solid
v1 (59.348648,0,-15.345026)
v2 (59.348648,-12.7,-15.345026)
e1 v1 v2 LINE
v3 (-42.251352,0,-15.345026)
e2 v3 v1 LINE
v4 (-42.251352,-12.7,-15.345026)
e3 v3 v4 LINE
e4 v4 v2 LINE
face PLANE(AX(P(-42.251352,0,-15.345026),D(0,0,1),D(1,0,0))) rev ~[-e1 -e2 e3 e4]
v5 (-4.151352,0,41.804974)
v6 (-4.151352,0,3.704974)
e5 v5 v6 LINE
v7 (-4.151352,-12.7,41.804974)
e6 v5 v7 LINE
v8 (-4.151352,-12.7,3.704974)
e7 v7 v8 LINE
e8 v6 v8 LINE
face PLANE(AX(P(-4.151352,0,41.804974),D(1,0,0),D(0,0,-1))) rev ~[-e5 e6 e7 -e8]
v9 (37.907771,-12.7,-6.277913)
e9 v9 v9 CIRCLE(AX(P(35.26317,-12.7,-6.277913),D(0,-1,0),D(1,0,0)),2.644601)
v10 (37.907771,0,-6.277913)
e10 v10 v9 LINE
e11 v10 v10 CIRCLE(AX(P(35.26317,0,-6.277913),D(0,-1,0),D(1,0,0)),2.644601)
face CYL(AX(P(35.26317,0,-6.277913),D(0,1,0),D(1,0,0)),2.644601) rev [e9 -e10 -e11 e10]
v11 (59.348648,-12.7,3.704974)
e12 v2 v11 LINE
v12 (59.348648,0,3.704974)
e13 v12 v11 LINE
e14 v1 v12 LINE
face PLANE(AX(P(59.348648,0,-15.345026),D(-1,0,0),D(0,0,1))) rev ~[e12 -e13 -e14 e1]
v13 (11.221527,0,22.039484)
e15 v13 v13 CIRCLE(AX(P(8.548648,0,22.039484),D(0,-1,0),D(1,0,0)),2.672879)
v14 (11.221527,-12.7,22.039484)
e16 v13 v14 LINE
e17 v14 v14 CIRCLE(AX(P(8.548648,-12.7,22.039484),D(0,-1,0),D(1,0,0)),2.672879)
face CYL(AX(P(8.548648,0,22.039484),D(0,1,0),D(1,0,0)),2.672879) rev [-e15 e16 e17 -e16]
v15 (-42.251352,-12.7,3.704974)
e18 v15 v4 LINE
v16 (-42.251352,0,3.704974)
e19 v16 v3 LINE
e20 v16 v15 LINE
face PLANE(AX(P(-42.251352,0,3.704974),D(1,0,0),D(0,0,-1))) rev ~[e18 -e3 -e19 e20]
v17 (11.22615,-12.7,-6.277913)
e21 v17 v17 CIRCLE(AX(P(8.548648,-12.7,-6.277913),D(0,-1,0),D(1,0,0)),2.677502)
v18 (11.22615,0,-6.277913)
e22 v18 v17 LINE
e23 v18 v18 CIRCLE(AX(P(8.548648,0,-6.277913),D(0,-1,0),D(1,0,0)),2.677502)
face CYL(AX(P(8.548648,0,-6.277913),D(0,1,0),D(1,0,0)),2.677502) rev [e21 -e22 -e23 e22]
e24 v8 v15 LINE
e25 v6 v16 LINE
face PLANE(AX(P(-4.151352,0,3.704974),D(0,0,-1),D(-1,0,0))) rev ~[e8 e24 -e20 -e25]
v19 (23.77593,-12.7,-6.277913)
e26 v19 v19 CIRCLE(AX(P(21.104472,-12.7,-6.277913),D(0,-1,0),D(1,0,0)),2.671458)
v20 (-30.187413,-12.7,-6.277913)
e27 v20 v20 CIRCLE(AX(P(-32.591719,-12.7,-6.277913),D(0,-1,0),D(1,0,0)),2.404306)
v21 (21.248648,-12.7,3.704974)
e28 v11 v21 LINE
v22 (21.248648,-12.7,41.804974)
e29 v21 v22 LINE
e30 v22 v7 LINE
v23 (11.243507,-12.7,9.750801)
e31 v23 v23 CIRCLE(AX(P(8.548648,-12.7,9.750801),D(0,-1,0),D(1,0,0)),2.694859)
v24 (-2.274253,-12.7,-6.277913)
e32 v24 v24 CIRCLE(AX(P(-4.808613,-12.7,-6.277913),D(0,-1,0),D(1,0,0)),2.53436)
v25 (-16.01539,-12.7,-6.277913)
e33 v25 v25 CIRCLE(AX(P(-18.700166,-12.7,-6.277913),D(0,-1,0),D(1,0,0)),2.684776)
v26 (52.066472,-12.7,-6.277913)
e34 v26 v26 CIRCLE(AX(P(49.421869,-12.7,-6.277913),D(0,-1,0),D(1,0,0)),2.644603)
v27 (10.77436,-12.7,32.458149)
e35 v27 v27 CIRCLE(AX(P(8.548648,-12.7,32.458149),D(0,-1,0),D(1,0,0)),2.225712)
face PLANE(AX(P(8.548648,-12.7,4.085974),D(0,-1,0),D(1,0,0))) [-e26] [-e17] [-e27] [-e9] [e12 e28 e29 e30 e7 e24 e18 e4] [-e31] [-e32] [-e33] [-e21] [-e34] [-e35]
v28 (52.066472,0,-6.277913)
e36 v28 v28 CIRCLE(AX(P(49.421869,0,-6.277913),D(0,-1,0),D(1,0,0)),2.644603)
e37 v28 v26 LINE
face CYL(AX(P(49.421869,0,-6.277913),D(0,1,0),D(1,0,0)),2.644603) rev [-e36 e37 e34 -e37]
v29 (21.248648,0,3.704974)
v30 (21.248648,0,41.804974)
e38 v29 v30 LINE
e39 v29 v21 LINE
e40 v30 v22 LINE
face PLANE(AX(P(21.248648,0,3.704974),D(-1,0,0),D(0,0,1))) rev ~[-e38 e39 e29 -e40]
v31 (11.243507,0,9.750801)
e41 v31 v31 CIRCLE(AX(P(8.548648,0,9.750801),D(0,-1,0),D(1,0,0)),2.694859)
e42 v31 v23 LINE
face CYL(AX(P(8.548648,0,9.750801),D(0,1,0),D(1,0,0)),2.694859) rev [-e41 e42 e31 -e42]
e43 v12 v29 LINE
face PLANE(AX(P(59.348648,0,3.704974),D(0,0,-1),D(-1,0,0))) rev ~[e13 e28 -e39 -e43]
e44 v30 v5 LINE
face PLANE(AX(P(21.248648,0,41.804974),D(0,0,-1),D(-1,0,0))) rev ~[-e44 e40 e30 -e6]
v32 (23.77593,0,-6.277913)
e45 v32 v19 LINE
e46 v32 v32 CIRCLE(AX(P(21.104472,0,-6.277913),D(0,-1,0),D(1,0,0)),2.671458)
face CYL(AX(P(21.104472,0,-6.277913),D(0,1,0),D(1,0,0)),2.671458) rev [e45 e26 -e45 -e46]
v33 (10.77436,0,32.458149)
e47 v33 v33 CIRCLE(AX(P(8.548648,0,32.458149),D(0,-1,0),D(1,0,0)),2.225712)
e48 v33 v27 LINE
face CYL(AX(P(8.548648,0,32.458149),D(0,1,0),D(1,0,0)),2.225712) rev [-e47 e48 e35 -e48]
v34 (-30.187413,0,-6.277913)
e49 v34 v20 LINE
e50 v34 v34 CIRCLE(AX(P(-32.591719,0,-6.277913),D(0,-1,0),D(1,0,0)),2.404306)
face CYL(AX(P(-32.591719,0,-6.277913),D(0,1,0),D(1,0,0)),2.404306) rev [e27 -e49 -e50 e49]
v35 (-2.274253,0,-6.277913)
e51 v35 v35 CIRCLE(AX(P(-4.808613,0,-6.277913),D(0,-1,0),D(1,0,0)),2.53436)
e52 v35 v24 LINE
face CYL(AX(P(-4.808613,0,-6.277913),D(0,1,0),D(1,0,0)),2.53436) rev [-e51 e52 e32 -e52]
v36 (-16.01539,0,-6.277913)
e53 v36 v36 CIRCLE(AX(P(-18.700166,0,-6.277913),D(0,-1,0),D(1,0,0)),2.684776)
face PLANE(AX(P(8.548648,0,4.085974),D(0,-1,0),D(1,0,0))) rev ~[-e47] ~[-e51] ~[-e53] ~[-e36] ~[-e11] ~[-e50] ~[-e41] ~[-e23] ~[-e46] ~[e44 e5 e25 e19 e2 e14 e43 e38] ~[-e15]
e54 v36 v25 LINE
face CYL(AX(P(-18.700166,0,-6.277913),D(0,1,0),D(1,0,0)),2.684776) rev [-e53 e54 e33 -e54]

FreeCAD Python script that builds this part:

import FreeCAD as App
import Part
import Sketcher

V = App.Vector
Q = App.Units.Quantity

doc = App.newDocument("Part")
body = doc.addObject("PartDesign::Body", "Body")

# Sketch on XZ plane
sketch1 = doc.addObject("Sketcher::SketchObject", "Sketch")
body.addObject(sketch1)
sketch1.AttachmentSupport = (doc.XZ_Plane, [""])
sketch1.MapMode = "FlatFace"
sketch1.addGeometry([
    Part.LineSegment(V(-42.251352, -15.345026, 0), V(59.348648, -15.345026, 0)),  # 0
    Part.LineSegment(V(59.348648, -15.345026, 0), V(59.348648, 3.704974, 0)),  # 1
    Part.LineSegment(V(59.348648, 3.704974, 0), V(21.248648, 3.704974, 0)),  # 2
    Part.LineSegment(V(21.248648, 3.704974, 0), V(21.248648, 41.804974, 0)),  # 3
    Part.LineSegment(V(21.248648, 41.804974, 0), V(-4.151352, 41.804974, 0)),  # 4
    Part.LineSegment(V(-4.151352, 41.804974, 0), V(-4.151352, 3.704974, 0)),  # 5
    Part.LineSegment(V(-4.151352, 3.704974, 0), V(-42.251352, 3.704974, 0)),  # 6
    Part.LineSegment(V(-42.251352, 3.704974, 0), V(-42.251352, -15.345026, 0)),  # 7
    Part.Circle(V(-32.591719, -6.277913, 0), V(0, 0, 1), 2.404306),  # 8
    Part.Circle(V(-18.700166, -6.277913, 0), V(0, 0, 1), 2.684776),  # 9
    Part.Circle(V(-4.808613, -6.277913, 0), V(0, 0, 1), 2.53436),  # 10
    Part.Circle(V(8.548648, -6.277913, 0), V(0, 0, 1), 2.677502),  # 11
    Part.Circle(V(21.104472, -6.277913, 0), V(0, 0, 1), 2.671458),  # 12
    Part.Circle(V(35.26317, -6.277913, 0), V(0, 0, 1), 2.644601),  # 13
    Part.Circle(V(49.421869, -6.277913, 0), V(0, 0, 1), 2.644603),  # 14
    Part.Circle(V(8.548648, 9.750801, 0), V(0, 0, 1), 2.694859),  # 15
    Part.Circle(V(8.548648, 22.039484, 0), V(0, 0, 1), 2.672879),  # 16
    Part.Circle(V(8.548648, 32.458149, 0), V(0, 0, 1), 2.225712),  # 17
], False)
sketch1.addConstraint([
    Sketcher.Constraint("Coincident", 0, 2, 1, 1),
    Sketcher.Constraint("Coincident", 1, 2, 2, 1),
    Sketcher.Constraint("Coincident", 2, 2, 3, 1),
    Sketcher.Constraint("Coincident", 3, 2, 4, 1),
    Sketcher.Constraint("Coincident", 4, 2, 5, 1),
    Sketcher.Constraint("Coincident", 5, 2, 6, 1),
    Sketcher.Constraint("Coincident", 6, 2, 7, 1),
    Sketcher.Constraint("Coincident", 7, 2, 0, 1),
    Sketcher.Constraint("Horizontal", 0),
    Sketcher.Constraint("Vertical", 1),
    Sketcher.Constraint("Horizontal", 2),
    Sketcher.Constraint("Vertical", 3),
    Sketcher.Constraint("Horizontal", 4),
    Sketcher.Constraint("Vertical", 5),
    Sketcher.Constraint("Horizontal", 6),
    Sketcher.Constraint("Vertical", 7),
    Sketcher.Constraint("Equal", 13, 14),
    Sketcher.Constraint("Horizontal", 8, 3, 9, 3),
    Sketcher.Constraint("Horizontal", 9, 3, 10, 3),
    Sketcher.Constraint("Horizontal", 10, 3, 11, 3),
    Sketcher.Constraint("Horizontal", 11, 3, 12, 3),
    Sketcher.Constraint("Horizontal", 12, 3, 13, 3),
    Sketcher.Constraint("Horizontal", 13, 3, 14, 3),
    Sketcher.Constraint("Horizontal", 2, 2, 5, 2),
    Sketcher.Constraint("Vertical", 11, 3, 15, 3),
    Sketcher.Constraint("Vertical", 15, 3, 16, 3),
    Sketcher.Constraint("Vertical", 16, 3, 17, 3),
    Sketcher.Constraint("Equal", 2, 6),
    Sketcher.Constraint("Equal", 6, 3),
    Sketcher.Constraint("DistanceX", 0, 1, 0, 2, Q("4 in")),
    Sketcher.Constraint("DistanceX", 4, 2, 4, 1, Q("1 in")),
    Sketcher.Constraint("DistanceX", 11, 3, 0, 2, Q("2 in")),
    Sketcher.Constraint("DistanceY", 1, 1, 1, 2, Q("0.75 in")),
    Sketcher.Constraint("Diameter", 9, 5.369552),
    Sketcher.Constraint("Diameter", 10, 5.06872),
    Sketcher.Constraint("Diameter", 15, 5.389718),
    Sketcher.Constraint("Diameter", 8, 4.808612),
    Sketcher.Constraint("Diameter", 11, 5.355004),
    Sketcher.Constraint("Diameter", 12, 5.342916),
    Sketcher.Constraint("Diameter", 13, 5.289202),
    Sketcher.Constraint("Diameter", 16, 5.345758),
    Sketcher.Constraint("Diameter", 17, 4.451424),
    Sketcher.Constraint("DistanceX", 10, 3, 12, 3, Q("1.0202002 in")),
    Sketcher.Constraint("DistanceY", -1, 1, 15, 3, 9.750801),
    Sketcher.Constraint("DistanceX", 12, 3, 13, 3, 14.158698),
    Sketcher.Constraint("DistanceX", 13, 3, 14, 3, 14.158699),
    Sketcher.Constraint("DistanceX", 8, 3, -1, 1, 32.591719),
    Sketcher.Constraint("DistanceX", -1, 1, 13, 3, 35.26317),
    Sketcher.Constraint("DistanceY", -1, 1, 17, 3, 32.458149),
    Sketcher.Constraint("DistanceX", 6, 2, -1, 1, 42.251352),
    Sketcher.Constraint("DistanceY", 11, 3, 17, 3, 38.736062),
    Sketcher.Constraint("DistanceY", 2, 2, 16, 3, 18.33451),
    Sketcher.Constraint("DistanceX", 9, 3, -1, 1, 18.700166),
    Sketcher.Constraint("DistanceY", -1, 1, 16, 3, 22.039484),
])
pad1 = doc.addObject("PartDesign::Pad", "Pad")
body.addObject(pad1)
pad1.Profile = sketch1
pad1.Length = Q("0.5 in")

doc.recompute()
